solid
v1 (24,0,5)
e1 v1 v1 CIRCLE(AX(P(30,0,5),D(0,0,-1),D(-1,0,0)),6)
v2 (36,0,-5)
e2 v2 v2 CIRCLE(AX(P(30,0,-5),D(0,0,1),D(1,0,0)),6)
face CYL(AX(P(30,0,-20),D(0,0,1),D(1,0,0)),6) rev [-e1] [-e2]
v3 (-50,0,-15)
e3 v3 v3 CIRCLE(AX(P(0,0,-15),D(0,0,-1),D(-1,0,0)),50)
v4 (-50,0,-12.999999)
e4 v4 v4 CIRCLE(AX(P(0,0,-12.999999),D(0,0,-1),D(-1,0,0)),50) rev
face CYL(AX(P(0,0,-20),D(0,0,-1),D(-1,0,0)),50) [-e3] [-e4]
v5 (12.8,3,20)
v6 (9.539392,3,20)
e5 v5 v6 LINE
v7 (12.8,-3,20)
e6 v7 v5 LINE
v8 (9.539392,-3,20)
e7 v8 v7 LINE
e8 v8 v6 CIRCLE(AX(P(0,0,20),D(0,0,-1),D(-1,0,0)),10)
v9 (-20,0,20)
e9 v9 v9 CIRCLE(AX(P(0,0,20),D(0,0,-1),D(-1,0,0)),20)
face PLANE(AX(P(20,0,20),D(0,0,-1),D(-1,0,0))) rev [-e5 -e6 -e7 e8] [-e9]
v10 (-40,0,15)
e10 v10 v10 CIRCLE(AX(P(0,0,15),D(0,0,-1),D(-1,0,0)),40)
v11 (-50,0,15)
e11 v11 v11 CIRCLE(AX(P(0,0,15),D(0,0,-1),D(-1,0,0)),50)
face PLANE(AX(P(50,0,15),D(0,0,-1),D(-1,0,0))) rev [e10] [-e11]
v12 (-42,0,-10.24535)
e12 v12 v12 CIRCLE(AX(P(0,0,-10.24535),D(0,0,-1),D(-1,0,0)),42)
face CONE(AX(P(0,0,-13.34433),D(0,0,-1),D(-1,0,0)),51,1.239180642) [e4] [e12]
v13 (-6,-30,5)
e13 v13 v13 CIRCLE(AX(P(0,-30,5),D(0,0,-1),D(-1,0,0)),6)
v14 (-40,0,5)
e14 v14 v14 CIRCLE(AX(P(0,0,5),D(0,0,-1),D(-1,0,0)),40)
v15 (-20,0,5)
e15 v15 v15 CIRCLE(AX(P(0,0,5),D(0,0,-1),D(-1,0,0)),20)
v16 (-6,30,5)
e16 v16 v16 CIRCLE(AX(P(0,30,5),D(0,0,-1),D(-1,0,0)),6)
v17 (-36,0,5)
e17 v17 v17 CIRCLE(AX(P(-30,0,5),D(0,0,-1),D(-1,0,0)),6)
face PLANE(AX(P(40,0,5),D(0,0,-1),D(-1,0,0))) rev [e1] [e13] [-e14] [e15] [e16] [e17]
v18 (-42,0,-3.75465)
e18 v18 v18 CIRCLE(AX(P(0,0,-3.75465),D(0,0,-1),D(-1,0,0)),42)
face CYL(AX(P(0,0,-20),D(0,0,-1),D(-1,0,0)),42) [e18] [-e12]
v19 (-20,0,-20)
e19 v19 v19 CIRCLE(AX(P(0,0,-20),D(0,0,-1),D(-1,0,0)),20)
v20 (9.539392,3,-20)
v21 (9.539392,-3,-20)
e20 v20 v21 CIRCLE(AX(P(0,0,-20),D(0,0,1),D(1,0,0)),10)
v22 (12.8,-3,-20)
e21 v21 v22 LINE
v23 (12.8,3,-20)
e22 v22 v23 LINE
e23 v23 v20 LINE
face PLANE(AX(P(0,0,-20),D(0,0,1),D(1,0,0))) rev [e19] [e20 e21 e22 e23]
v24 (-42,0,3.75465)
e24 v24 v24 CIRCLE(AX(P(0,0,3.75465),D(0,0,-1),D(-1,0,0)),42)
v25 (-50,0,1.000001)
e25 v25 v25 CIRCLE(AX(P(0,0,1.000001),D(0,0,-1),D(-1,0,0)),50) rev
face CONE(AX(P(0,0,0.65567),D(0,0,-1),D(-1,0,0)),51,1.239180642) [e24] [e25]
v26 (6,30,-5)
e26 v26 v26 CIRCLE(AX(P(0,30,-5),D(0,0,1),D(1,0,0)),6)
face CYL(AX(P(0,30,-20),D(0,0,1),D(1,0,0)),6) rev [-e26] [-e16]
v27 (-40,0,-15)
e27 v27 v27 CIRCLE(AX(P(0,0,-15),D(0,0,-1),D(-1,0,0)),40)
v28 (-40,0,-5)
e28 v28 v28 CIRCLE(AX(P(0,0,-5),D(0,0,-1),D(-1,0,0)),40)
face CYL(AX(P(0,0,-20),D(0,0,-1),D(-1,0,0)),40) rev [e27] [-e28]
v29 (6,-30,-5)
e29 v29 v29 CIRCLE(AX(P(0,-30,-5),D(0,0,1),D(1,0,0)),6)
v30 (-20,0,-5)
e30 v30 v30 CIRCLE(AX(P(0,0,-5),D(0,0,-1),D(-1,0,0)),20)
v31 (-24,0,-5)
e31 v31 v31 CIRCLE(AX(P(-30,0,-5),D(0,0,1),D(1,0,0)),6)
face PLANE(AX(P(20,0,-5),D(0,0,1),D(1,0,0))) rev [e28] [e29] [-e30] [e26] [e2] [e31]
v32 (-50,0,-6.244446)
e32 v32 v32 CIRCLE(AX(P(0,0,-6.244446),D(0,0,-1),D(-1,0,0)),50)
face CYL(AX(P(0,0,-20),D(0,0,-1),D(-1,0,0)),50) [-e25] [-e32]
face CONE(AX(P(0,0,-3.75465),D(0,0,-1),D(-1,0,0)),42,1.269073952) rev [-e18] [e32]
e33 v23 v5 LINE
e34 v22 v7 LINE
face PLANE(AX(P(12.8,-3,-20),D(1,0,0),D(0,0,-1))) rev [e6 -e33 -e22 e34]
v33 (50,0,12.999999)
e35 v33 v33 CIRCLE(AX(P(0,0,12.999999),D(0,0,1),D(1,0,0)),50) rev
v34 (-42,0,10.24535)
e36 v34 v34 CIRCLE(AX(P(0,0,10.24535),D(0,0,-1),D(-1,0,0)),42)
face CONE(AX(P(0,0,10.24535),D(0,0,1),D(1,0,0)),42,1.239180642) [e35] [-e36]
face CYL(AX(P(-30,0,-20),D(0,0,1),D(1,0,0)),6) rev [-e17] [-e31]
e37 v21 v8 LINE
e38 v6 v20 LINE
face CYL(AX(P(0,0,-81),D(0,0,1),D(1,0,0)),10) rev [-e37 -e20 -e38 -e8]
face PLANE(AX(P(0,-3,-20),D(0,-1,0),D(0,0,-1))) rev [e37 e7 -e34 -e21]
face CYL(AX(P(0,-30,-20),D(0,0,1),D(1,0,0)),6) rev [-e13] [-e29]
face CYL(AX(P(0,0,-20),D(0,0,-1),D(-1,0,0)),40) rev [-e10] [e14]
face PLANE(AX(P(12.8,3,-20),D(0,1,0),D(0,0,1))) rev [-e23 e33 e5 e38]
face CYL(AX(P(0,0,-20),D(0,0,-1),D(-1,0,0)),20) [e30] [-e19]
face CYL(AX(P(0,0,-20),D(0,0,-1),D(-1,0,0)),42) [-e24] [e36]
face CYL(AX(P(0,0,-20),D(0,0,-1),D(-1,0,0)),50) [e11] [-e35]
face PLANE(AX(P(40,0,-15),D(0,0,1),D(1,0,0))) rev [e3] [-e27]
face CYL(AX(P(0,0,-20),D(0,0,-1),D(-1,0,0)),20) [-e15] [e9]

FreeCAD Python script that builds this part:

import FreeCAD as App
import Part
import Sketcher

V = App.Vector
Q = App.Units.Quantity


def add_polygon(sketch, points):
    """Adds a closed chain of lines whose ends are joined by coincident constraints."""
    first, n = sketch.GeometryCount, len(points)
    for a, b in zip(points, points[1:] + points[:1]):
        sketch.addGeometry(Part.LineSegment(App.Vector(*a, 0), App.Vector(*b, 0)), False)
    for i in range(n):
        sketch.addConstraint(Sketcher.Constraint("Coincident", first + i, 2, first + (i + 1) % n, 1))

doc = App.newDocument("Part")
params = doc.addObject("Spreadsheet::Sheet", "Params")
for row, (alias, value) in enumerate([
    ("sketch1_width", "20 mm"),
    ("sketch1_width2", "10 mm"),
    ("sketch1_height", "40 mm"),
    ("sketch1_height2", "15 mm"),
    ("revolution_angle", "360 deg"),
    ("groove_angle", "360 deg"),
    ("sketch3_height", "6 mm"),
    ("sketch3_width", "12.8 mm"),
    ("sketch4_diameter", "12 mm"),
    ("sketch5_diameter", "20 mm"),
    ("pocket3_length", "202 mm"),
], start=1):
    params.set(f"A{row}", alias)
    params.set(f"B{row}", "=" + value)
    params.setAlias(f"B{row}", alias)

body = doc.addObject("PartDesign::Body", "Body")

sketch1 = body.newObject("Sketcher::SketchObject", "Sketch")
sketch1.AttachmentSupport = (doc.getObject("XZ_Plane"), [""])
sketch1.MapMode = "FlatFace"
add_polygon(sketch1, [(20, -20), (0, -20), (0, 20), (20, 20), (20, 5), (40, 5), (40, 15), (50, 15), (50, -15), (40, -15), (40, -5), (20, -5)])
sketch1.addConstraint(Sketcher.Constraint("Horizontal", 0))
sketch1.addConstraint(Sketcher.Constraint("Vertical", 1))
sketch1.addConstraint(Sketcher.Constraint("Horizontal", 2))
sketch1.addConstraint(Sketcher.Constraint("Vertical", 3))
sketch1.addConstraint(Sketcher.Constraint("Horizontal", 4))
sketch1.addConstraint(Sketcher.Constraint("Vertical", 5))
sketch1.addConstraint(Sketcher.Constraint("Horizontal", 6))
sketch1.addConstraint(Sketcher.Constraint("Vertical", 7))
sketch1.addConstraint(Sketcher.Constraint("Horizontal", 8))
sketch1.addConstraint(Sketcher.Constraint("Vertical", 9))
sketch1.addConstraint(Sketcher.Constraint("Horizontal", 10))
sketch1.addConstraint(Sketcher.Constraint("Vertical", 11))
sketch1.addConstraint(Sketcher.Constraint("Symmetric", 0, 2, 1, 2, -1, 1))
sketch1.addConstraint(Sketcher.Constraint("Symmetric", 5, 2, 8, 2, -1))
sketch1.addConstraint(Sketcher.Constraint("Symmetric", 3, 2, 10, 2, -1))
sketch1.addConstraint(Sketcher.Constraint("Equal", 2, 4))
sketch1.addConstraint(Sketcher.Constraint("Equal", 8, 5))
sketch1.addConstraint(Sketcher.Constraint("DistanceX", 0, 2, 0, 1, Q("20 mm")))
sketch1.addConstraint(Sketcher.Constraint("DistanceX", 6, 1, 6, 2, Q("10 mm")))
sketch1.addConstraint(Sketcher.Constraint("DistanceY", 1, 1, 1, 2, Q("40 mm")))
sketch1.addConstraint(Sketcher.Constraint("DistanceY", 3, 2, 3, 1, Q("15 mm")))
sketch1.setExpression("Constraints[29]", "Params.sketch1_width")
sketch1.setExpression("Constraints[30]", "Params.sketch1_width2")
sketch1.setExpression("Constraints[31]", "Params.sketch1_height")
sketch1.setExpression("Constraints[32]", "Params.sketch1_height2")
revolution = body.newObject("PartDesign::Revolution", "Revolution")
revolution.Profile = sketch1
revolution.ReferenceAxis = (sketch1, ["V_Axis"])
revolution.setExpression("Angle", "Params.revolution_angle")

sketch2 = body.newObject("Sketcher::SketchObject", "Sketch001")
sketch2.AttachmentSupport = (doc.getObject("XZ_Plane"), [""])
sketch2.MapMode = "FlatFace"
add_polygon(sketch2, [(51, 1), (42, 4), (42, 10), (51, 13)])
add_polygon(sketch2, [(42, -4), (51, -7), (51, -13), (42, -10)])
sketch2.addConstraint(Sketcher.Constraint("Vertical", 1))
sketch2.addConstraint(Sketcher.Constraint("Vertical", 3))
sketch2.addConstraint(Sketcher.Constraint("Vertical", 5))
sketch2.addConstraint(Sketcher.Constraint("Vertical", 7))
sketch2.addConstraint(Sketcher.Constraint("Symmetric", 2, 2, 5, 2, -1))
sketch2.addConstraint(Sketcher.Constraint("Symmetric", 1, 2, 6, 2, -1))
sketch2.addConstraint(Sketcher.Constraint("Parallel", 0, 6))
sketch2.addConstraint(Sketcher.Constraint("Equal", 1, 7))
sketch2.addConstraint(Sketcher.Constraint("DistanceX", -1, 1, 0, 2, Q("42 mm")))
sketch2.addConstraint(Sketcher.Constraint("DistanceX", -1, 1, 2, 2, Q("51 mm")))
sketch2.addConstraint(Sketcher.Constraint("DistanceY", 5, 2, 3, 2, Q("14 mm")))
sketch2.addConstraint(Sketcher.Constraint("DistanceY", 4, 2, 2, 2, Q("19.9 mm")))
sketch2.addConstraint(Sketcher.Constraint("DistanceY", 1, 1, 1, 2, Q("6.4907 mm")))
sketch2.addConstraint(Sketcher.Constraint("Distance", 4, Q("9.4258 mm")))
groove = body.newObject("PartDesign::Groove", "Groove")
groove.Profile = sketch2
groove.ReferenceAxis = (sketch2, ["V_Axis"])
groove.setExpression("Angle", "Params.groove_angle")

sketch3 = body.newObject("Sketcher::SketchObject", "Sketch002")
sketch3.AttachmentSupport = (doc.getObject("XY_Plane"), [""])
sketch3.MapMode = "FlatFace"
sketch3.AttachmentOffset = App.Placement(V(0, 0, 20), App.Rotation())
add_polygon(sketch3, [(0, 3), (0, -3), (13, -3), (13, 3)])
sketch3.addConstraint(Sketcher.Constraint("Vertical", 0))
sketch3.addConstraint(Sketcher.Constraint("Horizontal", 1))
sketch3.addConstraint(Sketcher.Constraint("Vertical", 2))
sketch3.addConstraint(Sketcher.Constraint("Horizontal", 3))
sketch3.addConstraint(Sketcher.Constraint("Symmetric", 0, 2, 3, 2, -1, 1))
sketch3.addConstraint(Sketcher.Constraint("DistanceY", 0, 2, 0, 1, Q("6 mm")))
sketch3.addConstraint(Sketcher.Constraint("DistanceX", 1, 1, 1, 2, Q("12.8 mm")))
sketch3.setExpression("Constraints[9]", "Params.sketch3_height")
sketch3.setExpression("Constraints[10]", "Params.sketch3_width")
pocket1 = body.newObject("PartDesign::Pocket", "Pocket")
pocket1.Profile = sketch3
pocket1.Type = "ThroughAll"

sketch4 = body.newObject("Sketcher::SketchObject", "Sketch003")
sketch4.AttachmentSupport = (doc.getObject("XY_Plane"), [""])
sketch4.MapMode = "FlatFace"
sketch4.AttachmentOffset = App.Placement(V(0, 0, 20), App.Rotation())
sketch4.addGeometry(Part.Circle(V(30, 0, 0), V(0, 0, 1), 6), False)
sketch4.addGeometry(Part.Circle(V(0, 30, 0), V(0, 0, 1), 6), False)
sketch4.addGeometry(Part.Circle(V(-30, 0, 0), V(0, 0, 1), 6), False)
sketch4.addGeometry(Part.Circle(V(0, -30, 0), V(0, 0, 1), 6), False)
sketch4.addConstraint(Sketcher.Constraint("Equal", 0, 1))
sketch4.addConstraint(Sketcher.Constraint("Equal", 1, 2))
sketch4.addConstraint(Sketcher.Constraint("Equal", 2, 3))
sketch4.addConstraint(Sketcher.Constraint("Symmetric", 0, 3, 2, 3, -1, 1))
sketch4.addConstraint(Sketcher.Constraint("Symmetric", 1, 3, 3, 3, -1, 1))
sketch4.addConstraint(Sketcher.Constraint("PointOnObject", 0, 3, -1))
sketch4.addConstraint(Sketcher.Constraint("PointOnObject", 1, 3, -2))
sketch4.addConstraint(Sketcher.Constraint("Diameter", 0, Q("12 mm")))
sketch4.addConstraint(Sketcher.Constraint("DistanceX", -1, 1, 0, 3, Q("30 mm")))
sketch4.addConstraint(Sketcher.Constraint("DistanceY", -1, 1, 1, 3, Q("30 mm")))
sketch4.setExpression("Constraints[7]", "Params.sketch4_diameter")
pocket2 = body.newObject("PartDesign::Pocket", "Pocket001")
pocket2.Profile = sketch4
pocket2.Type = "ThroughAll"

sketch5 = body.newObject("Sketcher::SketchObject", "Sketch004")
sketch5.AttachmentSupport = (doc.getObject("XY_Plane"), [""])
sketch5.MapMode = "FlatFace"
sketch5.AttachmentOffset = App.Placement(V(0, 0, 20), App.Rotation())
sketch5.addGeometry(Part.Circle(V(0, 0, 0), V(0, 0, 1), 10), False)
sketch5.addConstraint(Sketcher.Constraint("Coincident", 0, 3, -1, 1))
sketch5.addConstraint(Sketcher.Constraint("Diameter", 0, Q("20 mm")))
sketch5.setExpression("Constraints[1]", "Params.sketch5_diameter")
pocket3 = body.newObject("PartDesign::Pocket", "Pocket002")
pocket3.Profile = sketch5
pocket3.setExpression("Length", "Params.pocket3_length")
pocket3.Midplane = True

doc.recompute()
